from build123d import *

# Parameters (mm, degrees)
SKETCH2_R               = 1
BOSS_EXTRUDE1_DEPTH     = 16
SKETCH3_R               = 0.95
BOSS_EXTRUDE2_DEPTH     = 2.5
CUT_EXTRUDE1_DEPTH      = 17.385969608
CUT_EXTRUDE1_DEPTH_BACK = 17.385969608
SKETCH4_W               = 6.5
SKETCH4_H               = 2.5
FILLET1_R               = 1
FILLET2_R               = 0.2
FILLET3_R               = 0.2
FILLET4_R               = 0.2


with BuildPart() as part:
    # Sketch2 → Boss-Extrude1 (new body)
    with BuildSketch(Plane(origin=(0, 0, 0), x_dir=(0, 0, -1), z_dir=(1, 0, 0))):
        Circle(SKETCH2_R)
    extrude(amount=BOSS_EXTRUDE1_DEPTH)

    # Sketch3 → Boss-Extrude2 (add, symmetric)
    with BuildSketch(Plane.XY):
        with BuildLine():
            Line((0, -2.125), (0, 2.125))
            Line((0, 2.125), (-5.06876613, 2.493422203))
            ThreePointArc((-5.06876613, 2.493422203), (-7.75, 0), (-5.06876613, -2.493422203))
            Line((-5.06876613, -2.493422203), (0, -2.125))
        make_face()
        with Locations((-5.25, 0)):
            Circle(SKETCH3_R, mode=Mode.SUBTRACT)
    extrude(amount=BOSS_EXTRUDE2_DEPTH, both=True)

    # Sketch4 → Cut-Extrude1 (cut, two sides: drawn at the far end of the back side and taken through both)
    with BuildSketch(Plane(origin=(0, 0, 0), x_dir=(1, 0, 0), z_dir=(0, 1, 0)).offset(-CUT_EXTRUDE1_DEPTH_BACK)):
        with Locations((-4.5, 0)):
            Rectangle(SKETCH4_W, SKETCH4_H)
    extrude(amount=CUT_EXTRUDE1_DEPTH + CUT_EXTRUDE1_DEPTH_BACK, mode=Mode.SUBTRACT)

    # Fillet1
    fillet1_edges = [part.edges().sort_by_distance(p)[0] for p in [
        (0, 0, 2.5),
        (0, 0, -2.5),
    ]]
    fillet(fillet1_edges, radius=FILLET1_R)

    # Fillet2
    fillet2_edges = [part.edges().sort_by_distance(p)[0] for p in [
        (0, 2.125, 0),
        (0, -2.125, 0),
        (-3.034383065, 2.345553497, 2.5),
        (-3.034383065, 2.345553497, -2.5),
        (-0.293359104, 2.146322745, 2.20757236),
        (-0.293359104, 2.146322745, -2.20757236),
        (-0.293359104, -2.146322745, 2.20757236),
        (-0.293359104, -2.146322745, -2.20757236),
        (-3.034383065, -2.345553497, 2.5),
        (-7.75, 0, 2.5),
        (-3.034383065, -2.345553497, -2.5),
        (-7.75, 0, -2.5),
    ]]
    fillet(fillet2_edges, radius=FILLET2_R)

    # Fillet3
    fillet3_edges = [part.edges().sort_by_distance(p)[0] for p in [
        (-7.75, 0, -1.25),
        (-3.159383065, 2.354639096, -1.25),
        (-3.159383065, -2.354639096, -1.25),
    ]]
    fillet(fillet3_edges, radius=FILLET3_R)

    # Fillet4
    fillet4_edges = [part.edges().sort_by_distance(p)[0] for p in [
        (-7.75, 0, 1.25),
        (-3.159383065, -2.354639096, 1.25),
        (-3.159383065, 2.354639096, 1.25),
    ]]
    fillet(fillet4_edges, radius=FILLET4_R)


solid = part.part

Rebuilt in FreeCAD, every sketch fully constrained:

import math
import FreeCAD as App
import Part
import Sketcher

V = App.Vector
Q = App.Units.Quantity


def edges_at(feature, points):
    """Names of the edges that pass closest to the given points."""
    edges = feature.Shape.Edges
    near = lambda p: min(range(len(edges)), key=lambda i: edges[i].distToShape(Part.Vertex(*p))[0])
    return sorted({f"Edge{near(p) + 1}" for p in points})

doc = App.newDocument("Part")
params = doc.addObject("Spreadsheet::Sheet", "Params")
for row, (alias, value) in enumerate([
    ("sketch1_diameter", "2 mm"),
    ("pad1_length", "16 mm"),
    ("sketch2_diameter", "1.9 mm"),
    ("sketch2_radius", "2.5 mm"),
    ("sketch2_height", "4.25 mm"),
    ("pad2_length", "5 mm"),
    ("sketch3_width", "6.5 mm"),
    ("sketch3_height", "2.5 mm"),
    ("fillet_radius", "1 mm"),
    ("fillet2_radius", "0.2 mm"),
    ("fillet3_radius", "0.2 mm"),
    ("fillet4_radius", "0.2 mm"),
], start=1):
    params.set(f"A{row}", alias)
    params.set(f"B{row}", "=" + value)
    params.setAlias(f"B{row}", alias)

body = doc.addObject("PartDesign::Body", "Body")

sketch1 = doc.addObject("Sketcher::SketchObject", "Sketch")
body.addObject(sketch1)
sketch1.AttachmentSupport = (doc.YZ_Plane, [""])
sketch1.MapMode = "FlatFace"
sketch1.addGeometry(Part.Circle(V(0, 0, 0), V(0, 0, 1), 1), False)
sketch1.addConstraint(Sketcher.Constraint("Coincident", 0, 3, -1, 1))
sketch1.addConstraint(Sketcher.Constraint("Diameter", 0, Q("2 mm")))
sketch1.setExpression("Constraints[1]", "Params.sketch1_diameter")
pad1 = doc.addObject("PartDesign::Pad", "Pad")
body.addObject(pad1)
pad1.Profile = sketch1
pad1.setExpression("Length", "Params.pad1_length")

sketch2 = doc.addObject("Sketcher::SketchObject", "Sketch001")
body.addObject(sketch2)
sketch2.AttachmentSupport = (doc.XY_Plane, [""])
sketch2.MapMode = "FlatFace"
sketch2.addGeometry(Part.LineSegment(V(0, -2.1, 0), V(0, 2.1, 0)), False)
sketch2.addGeometry(Part.LineSegment(V(0, 2.1, 0), V(-5.1, 2.5, 0)), False)
sketch2.addGeometry(Part.ArcOfCircle(Part.Circle(V(-5.2, 0, 0), V(0, 0, 1), 2.5), math.radians(86), math.radians(274)), False)
sketch2.addGeometry(Part.LineSegment(V(-5.1, -2.5, 0), V(0, -2.1, 0)), False)
sketch2.addGeometry(Part.Circle(V(-5.2, 0, 0), V(0, 0, 1), 0.9), False)
sketch2.addConstraint(Sketcher.Constraint("Coincident", 0, 2, 1, 1))
sketch2.addConstraint(Sketcher.Constraint("Tangent", 1, 2, 2, 1))
sketch2.addConstraint(Sketcher.Constraint("Tangent", 2, 2, 3, 1))
sketch2.addConstraint(Sketcher.Constraint("Coincident", 3, 2, 0, 1))
sketch2.addConstraint(Sketcher.Constraint("Vertical", 0))
sketch2.addConstraint(Sketcher.Constraint("Coincident", 4, 3, 2, 3))
sketch2.addConstraint(Sketcher.Constraint("Symmetric", 0, 2, 3, 2, -1, 1))
sketch2.addConstraint(Sketcher.Constraint("PointOnObject", 2, 3, -1))
sketch2.addConstraint(Sketcher.Constraint("Diameter", 4, Q("1.9 mm")))
sketch2.addConstraint(Sketcher.Constraint("Radius", 2, Q("2.5 mm")))
sketch2.addConstraint(Sketcher.Constraint("DistanceY", 0, 1, 0, 2, Q("4.25 mm")))
sketch2.addConstraint(Sketcher.Constraint("DistanceX", 2, 3, -1, 1, Q("5.25 mm")))
sketch2.setExpression("Constraints[8]", "Params.sketch2_diameter")
sketch2.setExpression("Constraints[9]", "Params.sketch2_radius")
sketch2.setExpression("Constraints[10]", "Params.sketch2_height")
pad2 = doc.addObject("PartDesign::Pad", "Pad001")
body.addObject(pad2)
pad2.Profile = sketch2
pad2.setExpression("Length", "Params.pad2_length")
pad2.Midplane = True

sketch3 = doc.addObject("Sketcher::SketchObject", "Sketch002")
body.addObject(sketch3)
sketch3.AttachmentSupport = (doc.XZ_Plane, [""])
sketch3.MapMode = "FlatFace"
sketch3.addGeometry(Part.LineSegment(V(-7.8, -1.2, 0), V(-7.8, 1.2, 0)), False)
sketch3.addGeometry(Part.LineSegment(V(-7.8, 1.2, 0), V(-1.2, 1.2, 0)), False)
sketch3.addGeometry(Part.LineSegment(V(-1.2, 1.2, 0), V(-1.2, -1.2, 0)), False)
sketch3.addGeometry(Part.LineSegment(V(-1.2, -1.2, 0), V(-7.8, -1.2, 0)), False)
sketch3.addConstraint(Sketcher.Constraint("Coincident", 0, 2, 1, 1))
sketch3.addConstraint(Sketcher.Constraint("Coincident", 1, 2, 2, 1))
sketch3.addConstraint(Sketcher.Constraint("Coincident", 2, 2, 3, 1))
sketch3.addConstraint(Sketcher.Constraint("Coincident", 3, 2, 0, 1))
sketch3.addConstraint(Sketcher.Constraint("Vertical", 0))
sketch3.addConstraint(Sketcher.Constraint("Horizontal", 1))
sketch3.addConstraint(Sketcher.Constraint("Vertical", 2))
sketch3.addConstraint(Sketcher.Constraint("Horizontal", 3))
sketch3.addConstraint(Sketcher.Constraint("DistanceX", 1, 1, 1, 2, Q("6.5 mm")))
sketch3.addConstraint(Sketcher.Constraint("DistanceY", 0, 1, 0, 2, Q("2.5 mm")))
sketch3.addConstraint(Sketcher.Constraint("DistanceX", 0, 2, -1, 1, Q("7.75 mm")))
sketch3.addConstraint(Sketcher.Constraint("DistanceY", -1, 1, 0, 2, Q("1.25 mm")))
sketch3.setExpression("Constraints[8]", "Params.sketch3_width")
sketch3.setExpression("Constraints[9]", "Params.sketch3_height")
pocket1 = doc.addObject("PartDesign::Pocket", "Pocket")
body.addObject(pocket1)
pocket1.Profile = sketch3
pocket1.Type = "ThroughAll"
pocket1.Midplane = True
doc.recompute()

fillet = doc.addObject("PartDesign::Fillet", "Fillet")
body.addObject(fillet)
fillet.Base = (pocket1, edges_at(pocket1, [(0, 0, 2.5), (0, 0, -2.5)]))
fillet.setExpression("Radius", "Params.fillet_radius")
doc.recompute()

fillet2 = doc.addObject("PartDesign::Fillet", "Fillet001")
body.addObject(fillet2)
fillet2.Base = (fillet, edges_at(fillet, [
    (0, 2.125, 0),
    (0, -2.125, 0),
    (-3.034, 2.346, 2.5),
    (-3.034, 2.346, -2.5),
    (-0.293, 2.146, 2.208),
    (-0.293, 2.146, -2.208),
    (-0.293, -2.146, 2.208),
    (-0.293, -2.146, -2.208),
    (-3.034, -2.346, 2.5),
    (-7.75, 0, 2.5),
    (-3.034, -2.346, -2.5),
    (-7.75, 0, -2.5),
]))
fillet2.setExpression("Radius", "Params.fillet2_radius")
doc.recompute()

fillet3 = doc.addObject("PartDesign::Fillet", "Fillet002")
body.addObject(fillet3)
fillet3.Base = (fillet2, edges_at(fillet2, [(-7.75, 0, -1.25), (-3.159, 2.355, -1.25), (-3.159, -2.355, -1.25)]))
fillet3.setExpression("Radius", "Params.fillet3_radius")
doc.recompute()

fillet4 = doc.addObject("PartDesign::Fillet", "Fillet003")
body.addObject(fillet4)
fillet4.Base = (fillet3, edges_at(fillet3, [(-7.75, 0, 1.25), (-3.159, -2.355, 1.25), (-3.159, 2.355, 1.25)]))
fillet4.setExpression("Radius", "Params.fillet4_radius")

doc.recompute()
